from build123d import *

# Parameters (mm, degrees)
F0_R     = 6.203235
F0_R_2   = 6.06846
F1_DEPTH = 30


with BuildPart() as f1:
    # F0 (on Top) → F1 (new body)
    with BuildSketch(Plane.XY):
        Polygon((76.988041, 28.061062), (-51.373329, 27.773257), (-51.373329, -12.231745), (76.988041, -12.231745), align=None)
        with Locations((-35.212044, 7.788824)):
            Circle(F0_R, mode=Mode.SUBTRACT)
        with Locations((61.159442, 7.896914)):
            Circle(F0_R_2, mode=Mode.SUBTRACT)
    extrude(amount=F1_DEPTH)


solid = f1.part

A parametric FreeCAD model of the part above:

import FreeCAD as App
import Part
import Sketcher

V = App.Vector

doc = App.newDocument("Part")
body = doc.addObject("PartDesign::Body", "Body")

# Sketch on XY plane
sketch1 = doc.addObject("Sketcher::SketchObject", "Sketch")
body.addObject(sketch1)
sketch1.AttachmentSupport = (doc.XY_Plane, [""])
sketch1.MapMode = "FlatFace"
sketch1.addGeometry(Part.LineSegment(V(77, 28, 0), V(-51, 28, 0)), False)
sketch1.addGeometry(Part.LineSegment(V(-51, 28, 0), V(-51, -12, 0)), False)
sketch1.addGeometry(Part.LineSegment(V(-51, -12, 0), V(77, -12, 0)), False)
sketch1.addGeometry(Part.LineSegment(V(77, -12, 0), V(77, 28, 0)), False)
sketch1.addGeometry(Part.Circle(V(-35, 8, 0), V(0, 0, 1), 6), False)
sketch1.addGeometry(Part.Circle(V(61, 8, 0), V(0, 0, 1), 6), False)
sketch1.addConstraint(Sketcher.Constraint("Coincident", 0, 2, 1, 1))
sketch1.addConstraint(Sketcher.Constraint("Coincident", 1, 2, 2, 1))
sketch1.addConstraint(Sketcher.Constraint("Coincident", 2, 2, 3, 1))
sketch1.addConstraint(Sketcher.Constraint("Coincident", 3, 2, 0, 1))
sketch1.addConstraint(Sketcher.Constraint("Vertical", 1))
sketch1.addConstraint(Sketcher.Constraint("Horizontal", 2))
sketch1.addConstraint(Sketcher.Constraint("Vertical", 3))
sketch1.addConstraint(Sketcher.Constraint("Diameter", 4, 12.40647))
sketch1.addConstraint(Sketcher.Constraint("Diameter", 5, 12.13692))
sketch1.addConstraint(Sketcher.Constraint("DistanceX", 2, 1, 2, 2, 128.36137))
sketch1.addConstraint(Sketcher.Constraint("DistanceX", 5, 3, 2, 2, 15.828599))
sketch1.addConstraint(Sketcher.Constraint("DistanceY", 1, 2, 1, 1, 40.005002))
sketch1.addConstraint(Sketcher.Constraint("DistanceY", 3, 1, 3, 2, 40.292807))
sketch1.addConstraint(Sketcher.Constraint("DistanceX", 0, 2, -1, 1, 51.373329))
sketch1.addConstraint(Sketcher.Constraint("DistanceY", -1, 1, 3, 2, 28.061062))
sketch1.addConstraint(Sketcher.Constraint("DistanceY", 4, 3, 5, 3, 0.10809))
sketch1.addConstraint(Sketcher.Constraint("DistanceY", 1, 2, 4, 3, 20.020569))
sketch1.addConstraint(Sketcher.Constraint("DistanceX", 4, 3, -1, 1, 35.212044))
pad1 = doc.addObject("PartDesign::Pad", "Pad")
body.addObject(pad1)
pad1.Profile = sketch1
pad1.Length = 30

doc.recompute()
